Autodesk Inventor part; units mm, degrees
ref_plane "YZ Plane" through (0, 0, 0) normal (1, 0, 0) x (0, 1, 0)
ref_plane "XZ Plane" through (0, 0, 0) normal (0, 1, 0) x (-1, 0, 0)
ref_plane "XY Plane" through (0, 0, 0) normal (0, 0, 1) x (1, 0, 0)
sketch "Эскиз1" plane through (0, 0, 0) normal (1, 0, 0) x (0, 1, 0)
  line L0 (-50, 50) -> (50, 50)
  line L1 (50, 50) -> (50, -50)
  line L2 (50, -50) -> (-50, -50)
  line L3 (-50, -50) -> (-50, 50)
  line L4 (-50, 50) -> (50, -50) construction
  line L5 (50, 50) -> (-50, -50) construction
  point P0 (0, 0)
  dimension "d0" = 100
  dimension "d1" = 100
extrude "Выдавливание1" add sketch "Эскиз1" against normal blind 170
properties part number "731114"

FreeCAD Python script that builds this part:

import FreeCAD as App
import Part
import Sketcher


def add_polygon(sketch, points):
    """Adds a closed chain of lines whose ends are joined by coincident constraints."""
    first, n = sketch.GeometryCount, len(points)
    for a, b in zip(points, points[1:] + points[:1]):
        sketch.addGeometry(Part.LineSegment(App.Vector(*a, 0), App.Vector(*b, 0)), False)
    for i in range(n):
        sketch.addConstraint(Sketcher.Constraint("Coincident", first + i, 2, first + (i + 1) % n, 1))

doc = App.newDocument("Part")
params = doc.addObject("Spreadsheet::Sheet", "Params")
for row, (alias, value) in enumerate([
    ("sketch1_width", "100 mm"),
    ("pad1_length", "170 mm"),
], start=1):
    params.set(f"A{row}", alias)
    params.set(f"B{row}", "=" + value)
    params.setAlias(f"B{row}", alias)

body = doc.addObject("PartDesign::Body", "Body")

# Sketch on YZ plane
sketch1 = body.newObject("Sketcher::SketchObject", "Sketch")
sketch1.AttachmentSupport = (doc.getObject("YZ_Plane"), [""])
sketch1.MapMode = "FlatFace"
add_polygon(sketch1, [(50, 50), (-50, 50), (-50, -50), (50, -50)])  # lines 0-3
sketch1.addConstraint([
    Sketcher.Constraint("Horizontal", 0),
    Sketcher.Constraint("Vertical", 1),
    Sketcher.Constraint("Horizontal", 2),
    Sketcher.Constraint("Vertical", 3),
    Sketcher.Constraint("Symmetric", 0, 2, 2, 2, -1, 1),
    Sketcher.Constraint("Equal", 2, 1),
    Sketcher.Constraint("DistanceX", 0, 2, 0, 1, 100.0),
])
sketch1.setExpression("Constraints[10]", "Params.sketch1_width")
pad1 = body.newObject("PartDesign::Pad", "Pad")
pad1.Profile = sketch1
pad1.setExpression("Length", "Params.pad1_length")
pad1.Reversed = True

doc.recompute()
